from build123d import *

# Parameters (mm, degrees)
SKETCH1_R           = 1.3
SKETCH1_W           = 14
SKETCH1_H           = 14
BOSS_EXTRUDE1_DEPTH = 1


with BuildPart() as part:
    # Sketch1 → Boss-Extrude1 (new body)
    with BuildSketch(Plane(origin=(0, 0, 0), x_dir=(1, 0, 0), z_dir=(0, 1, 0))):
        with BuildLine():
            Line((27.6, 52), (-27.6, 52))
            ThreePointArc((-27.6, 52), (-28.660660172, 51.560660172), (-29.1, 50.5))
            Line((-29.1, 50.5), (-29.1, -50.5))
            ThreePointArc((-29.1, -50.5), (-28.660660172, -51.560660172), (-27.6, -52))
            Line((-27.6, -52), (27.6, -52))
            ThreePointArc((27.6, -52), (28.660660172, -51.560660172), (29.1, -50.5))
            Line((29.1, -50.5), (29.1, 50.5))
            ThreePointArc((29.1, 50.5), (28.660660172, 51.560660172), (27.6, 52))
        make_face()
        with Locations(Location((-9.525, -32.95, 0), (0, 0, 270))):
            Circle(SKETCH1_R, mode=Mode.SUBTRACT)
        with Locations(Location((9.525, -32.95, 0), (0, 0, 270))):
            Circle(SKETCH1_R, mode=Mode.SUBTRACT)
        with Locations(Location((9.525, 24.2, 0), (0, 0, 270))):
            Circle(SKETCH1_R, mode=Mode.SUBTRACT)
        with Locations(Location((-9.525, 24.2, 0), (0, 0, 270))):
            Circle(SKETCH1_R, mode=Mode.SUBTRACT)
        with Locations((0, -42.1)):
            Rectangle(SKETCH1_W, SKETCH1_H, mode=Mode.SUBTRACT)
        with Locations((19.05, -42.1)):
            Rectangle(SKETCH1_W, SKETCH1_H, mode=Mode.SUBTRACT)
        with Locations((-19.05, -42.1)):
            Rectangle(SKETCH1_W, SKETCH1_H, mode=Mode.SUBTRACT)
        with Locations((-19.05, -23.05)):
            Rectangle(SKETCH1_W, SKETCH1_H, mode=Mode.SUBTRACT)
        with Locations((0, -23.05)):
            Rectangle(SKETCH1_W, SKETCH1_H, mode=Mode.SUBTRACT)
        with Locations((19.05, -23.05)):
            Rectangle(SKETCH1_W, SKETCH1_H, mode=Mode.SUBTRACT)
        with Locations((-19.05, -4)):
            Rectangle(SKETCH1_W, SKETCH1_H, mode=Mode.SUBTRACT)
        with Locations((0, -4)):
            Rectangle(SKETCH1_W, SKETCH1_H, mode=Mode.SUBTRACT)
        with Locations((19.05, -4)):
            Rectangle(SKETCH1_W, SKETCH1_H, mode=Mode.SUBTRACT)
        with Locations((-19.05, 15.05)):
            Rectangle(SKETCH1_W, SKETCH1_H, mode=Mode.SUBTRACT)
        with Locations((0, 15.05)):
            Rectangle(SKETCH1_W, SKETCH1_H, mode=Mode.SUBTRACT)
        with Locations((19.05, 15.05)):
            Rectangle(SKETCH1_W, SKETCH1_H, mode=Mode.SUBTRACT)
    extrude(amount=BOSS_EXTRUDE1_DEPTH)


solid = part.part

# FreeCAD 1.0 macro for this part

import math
import FreeCAD as App
import Part
import Sketcher

doc = App.newDocument("Part")
body = doc.addObject("PartDesign::Body", "Body")

# Sketch on XZ plane
sketch1 = body.newObject("Sketcher::SketchObject", "Sketch")
sketch1.AttachmentSupport = (doc.getObject("XZ_Plane"), [""])
sketch1.MapMode = "FlatFace"
sketch1.addGeometry([
    Part.LineSegment(App.Vector(27.6, -52, 0), App.Vector(-27.6, -52, 0)),  # 0
    Part.ArcOfCircle(Part.Circle(App.Vector(-27.6, -50.5, 0), App.Vector(0, 0, 1), 1.5), math.radians(180), math.radians(270)),  # 1
    Part.LineSegment(App.Vector(-29.1, -50.5, 0), App.Vector(-29.1, 50.5, 0)),  # 2
    Part.ArcOfCircle(Part.Circle(App.Vector(-27.6, 50.5, 0), App.Vector(0, 0, 1), 1.5), math.radians(90), math.radians(180)),  # 3
    Part.LineSegment(App.Vector(-27.6, 52, 0), App.Vector(27.6, 52, 0)),  # 4
    Part.ArcOfCircle(Part.Circle(App.Vector(27.6, 50.5, 0), App.Vector(0, 0, 1), 1.5), math.radians(0), math.radians(90)),  # 5
    Part.LineSegment(App.Vector(29.1, 50.5, 0), App.Vector(29.1, -50.5, 0)),  # 6
    Part.ArcOfCircle(Part.Circle(App.Vector(27.6, -50.5, 0), App.Vector(0, 0, 1), 1.5), math.radians(-90), math.radians(0)),  # 7
    Part.LineSegment(App.Vector(-12.1, 49.1, 0), App.Vector(-26.1, 49.1, 0)),  # 8
    Part.LineSegment(App.Vector(-26.1, 49.1, 0), App.Vector(-26.1, 35.1, 0)),  # 9
    Part.LineSegment(App.Vector(-26.1, 35.1, 0), App.Vector(-12.1, 35.1, 0)),  # 10
    Part.LineSegment(App.Vector(-12.1, 35.1, 0), App.Vector(-12.1, 49.1, 0)),  # 11
    Part.Circle(App.Vector(-9.5, 33, 0), App.Vector(0, 0, 1), 1.3),  # 12
    Part.LineSegment(App.Vector(-12.1, 30.1, 0), App.Vector(-26.1, 30.1, 0)),  # 13
    Part.LineSegment(App.Vector(-26.1, 30.1, 0), App.Vector(-26.1, 16.1, 0)),  # 14
    Part.LineSegment(App.Vector(-26.1, 16.1, 0), App.Vector(-12.1, 16.1, 0)),  # 15
    Part.LineSegment(App.Vector(-12.1, 16.1, 0), App.Vector(-12.1, 30.1, 0)),  # 16
    Part.LineSegment(App.Vector(7, 49.1, 0), App.Vector(-7, 49.1, 0)),  # 17
    Part.LineSegment(App.Vector(-7, 49.1, 0), App.Vector(-7, 35.1, 0)),  # 18
    Part.LineSegment(App.Vector(-7, 35.1, 0), App.Vector(7, 35.1, 0)),  # 19
    Part.LineSegment(App.Vector(7, 35.1, 0), App.Vector(7, 49.1, 0)),  # 20
    Part.Circle(App.Vector(9.5, 33, 0), App.Vector(0, 0, 1), 1.3),  # 21
    Part.LineSegment(App.Vector(26.1, 49.1, 0), App.Vector(12.1, 49.1, 0)),  # 22
    Part.LineSegment(App.Vector(12.1, 49.1, 0), App.Vector(12.1, 35.1, 0)),  # 23
    Part.LineSegment(App.Vector(12.1, 35.1, 0), App.Vector(26.1, 35.1, 0)),  # 24
    Part.LineSegment(App.Vector(26.1, 35.1, 0), App.Vector(26.1, 49.1, 0)),  # 25
    Part.LineSegment(App.Vector(7, 30.1, 0), App.Vector(-7, 30.1, 0)),  # 26
    Part.LineSegment(App.Vector(-7, 30.1, 0), App.Vector(-7, 16.1, 0)),  # 27
    Part.LineSegment(App.Vector(-7, 16.1, 0), App.Vector(7, 16.1, 0)),  # 28
    Part.LineSegment(App.Vector(7, 16.1, 0), App.Vector(7, 30.1, 0)),  # 29
    Part.LineSegment(App.Vector(26.1, 30.1, 0), App.Vector(12.1, 30.1, 0)),  # 30
    Part.LineSegment(App.Vector(12.1, 30.1, 0), App.Vector(12.1, 16.1, 0)),  # 31
    Part.LineSegment(App.Vector(12.1, 16.1, 0), App.Vector(26.1, 16.1, 0)),  # 32
    Part.LineSegment(App.Vector(26.1, 16.1, 0), App.Vector(26.1, 30.1, 0)),  # 33
    Part.LineSegment(App.Vector(-12.1, 11, 0), App.Vector(-26.1, 11, 0)),  # 34
    Part.LineSegment(App.Vector(-26.1, 11, 0), App.Vector(-26.1, -3, 0)),  # 35
    Part.LineSegment(App.Vector(-26.1, -3, 0), App.Vector(-12.1, -3, 0)),  # 36
    Part.LineSegment(App.Vector(-12.1, -3, 0), App.Vector(-12.1, 11, 0)),  # 37
    Part.LineSegment(App.Vector(-12.1, -8.1, 0), App.Vector(-26.1, -8.1, 0)),  # 38
    Part.LineSegment(App.Vector(-26.1, -8.1, 0), App.Vector(-26.1, -22.1, 0)),  # 39
    Part.LineSegment(App.Vector(-26.1, -22.1, 0), App.Vector(-12.1, -22.1, 0)),  # 40
    Part.LineSegment(App.Vector(-12.1, -22.1, 0), App.Vector(-12.1, -8.1, 0)),  # 41
    Part.Circle(App.Vector(-9.5, -24.2, 0), App.Vector(0, 0, 1), 1.3),  # 42
    Part.LineSegment(App.Vector(7, 11, 0), App.Vector(-7, 11, 0)),  # 43
    Part.LineSegment(App.Vector(-7, 11, 0), App.Vector(-7, -3, 0)),  # 44
    Part.LineSegment(App.Vector(-7, -3, 0), App.Vector(7, -3, 0)),  # 45
    Part.LineSegment(App.Vector(7, -3, 0), App.Vector(7, 11, 0)),  # 46
    Part.LineSegment(App.Vector(26.1, 11, 0), App.Vector(12.1, 11, 0)),  # 47
    Part.LineSegment(App.Vector(12.1, 11, 0), App.Vector(12.1, -3, 0)),  # 48
    Part.LineSegment(App.Vector(12.1, -3, 0), App.Vector(26.1, -3, 0)),  # 49
    Part.LineSegment(App.Vector(26.1, -3, 0), App.Vector(26.1, 11, 0)),  # 50
    Part.LineSegment(App.Vector(7, -8.1, 0), App.Vector(-7, -8.1, 0)),  # 51
    Part.LineSegment(App.Vector(-7, -8.1, 0), App.Vector(-7, -22.1, 0)),  # 52
    Part.LineSegment(App.Vector(-7, -22.1, 0), App.Vector(7, -22.1, 0)),  # 53
    Part.LineSegment(App.Vector(7, -22.1, 0), App.Vector(7, -8.1, 0)),  # 54
    Part.Circle(App.Vector(9.5, -24.2, 0), App.Vector(0, 0, 1), 1.3),  # 55
    Part.LineSegment(App.Vector(26.1, -8.1, 0), App.Vector(12.1, -8.1, 0)),  # 56
    Part.LineSegment(App.Vector(12.1, -8.1, 0), App.Vector(12.1, -22.1, 0)),  # 57
    Part.LineSegment(App.Vector(12.1, -22.1, 0), App.Vector(26.1, -22.1, 0)),  # 58
    Part.LineSegment(App.Vector(26.1, -22.1, 0), App.Vector(26.1, -8.1, 0)),  # 59
], False)
sketch1.addConstraint([
    Sketcher.Constraint("Tangent", 0, 2, 1, 2),
    Sketcher.Constraint("Tangent", 1, 1, 2, 1),
    Sketcher.Constraint("Tangent", 2, 2, 3, 2),
    Sketcher.Constraint("Tangent", 3, 1, 4, 1),
    Sketcher.Constraint("Tangent", 4, 2, 5, 2),
    Sketcher.Constraint("Tangent", 5, 1, 6, 1),
    Sketcher.Constraint("Tangent", 6, 2, 7, 2),
    Sketcher.Constraint("Tangent", 7, 1, 0, 1),
    Sketcher.Constraint("Coincident", 8, 2, 9, 1),
    Sketcher.Constraint("Coincident", 9, 2, 10, 1),
    Sketcher.Constraint("Coincident", 10, 2, 11, 1),
    Sketcher.Constraint("Coincident", 11, 2, 8, 1),
    Sketcher.Constraint("Coincident", 13, 2, 14, 1),
    Sketcher.Constraint("Coincident", 14, 2, 15, 1),
    Sketcher.Constraint("Coincident", 15, 2, 16, 1),
    Sketcher.Constraint("Coincident", 16, 2, 13, 1),
    Sketcher.Constraint("Coincident", 17, 2, 18, 1),
    Sketcher.Constraint("Coincident", 18, 2, 19, 1),
    Sketcher.Constraint("Coincident", 19, 2, 20, 1),
    Sketcher.Constraint("Coincident", 20, 2, 17, 1),
    Sketcher.Constraint("Coincident", 22, 2, 23, 1),
    Sketcher.Constraint("Coincident", 23, 2, 24, 1),
    Sketcher.Constraint("Coincident", 24, 2, 25, 1),
    Sketcher.Constraint("Coincident", 25, 2, 22, 1),
    Sketcher.Constraint("Coincident", 26, 2, 27, 1),
    Sketcher.Constraint("Coincident", 27, 2, 28, 1),
    Sketcher.Constraint("Coincident", 28, 2, 29, 1),
    Sketcher.Constraint("Coincident", 29, 2, 26, 1),
    Sketcher.Constraint("Coincident", 30, 2, 31, 1),
    Sketcher.Constraint("Coincident", 31, 2, 32, 1),
    Sketcher.Constraint("Coincident", 32, 2, 33, 1),
    Sketcher.Constraint("Coincident", 33, 2, 30, 1),
    Sketcher.Constraint("Coincident", 34, 2, 35, 1),
    Sketcher.Constraint("Coincident", 35, 2, 36, 1),
    Sketcher.Constraint("Coincident", 36, 2, 37, 1),
    Sketcher.Constraint("Coincident", 37, 2, 34, 1),
    Sketcher.Constraint("Coincident", 38, 2, 39, 1),
    Sketcher.Constraint("Coincident", 39, 2, 40, 1),
    Sketcher.Constraint("Coincident", 40, 2, 41, 1),
    Sketcher.Constraint("Coincident", 41, 2, 38, 1),
    Sketcher.Constraint("Coincident", 43, 2, 44, 1),
    Sketcher.Constraint("Coincident", 44, 2, 45, 1),
    Sketcher.Constraint("Coincident", 45, 2, 46, 1),
    Sketcher.Constraint("Coincident", 46, 2, 43, 1),
    Sketcher.Constraint("Coincident", 47, 2, 48, 1),
    Sketcher.Constraint("Coincident", 48, 2, 49, 1),
    Sketcher.Constraint("Coincident", 49, 2, 50, 1),
    Sketcher.Constraint("Coincident", 50, 2, 47, 1),
    Sketcher.Constraint("Coincident", 51, 2, 52, 1),
    Sketcher.Constraint("Coincident", 52, 2, 53, 1),
    Sketcher.Constraint("Coincident", 53, 2, 54, 1),
    Sketcher.Constraint("Coincident", 54, 2, 51, 1),
    Sketcher.Constraint("Coincident", 56, 2, 57, 1),
    Sketcher.Constraint("Coincident", 57, 2, 58, 1),
    Sketcher.Constraint("Coincident", 58, 2, 59, 1),
    Sketcher.Constraint("Coincident", 59, 2, 56, 1),
    Sketcher.Constraint("Horizontal", 0),
    Sketcher.Constraint("Vertical", 2),
    Sketcher.Constraint("Horizontal", 4),
    Sketcher.Constraint("Vertical", 6),
    Sketcher.Constraint("Horizontal", 8),
    Sketcher.Constraint("Vertical", 9),
    Sketcher.Constraint("Horizontal", 10),
    Sketcher.Constraint("Vertical", 11),
    Sketcher.Constraint("Horizontal", 13),
    Sketcher.Constraint("Vertical", 14),
    Sketcher.Constraint("Horizontal", 15),
    Sketcher.Constraint("Vertical", 16),
    Sketcher.Constraint("Horizontal", 17),
    Sketcher.Constraint("Vertical", 18),
    Sketcher.Constraint("Horizontal", 19),
    Sketcher.Constraint("Vertical", 20),
    Sketcher.Constraint("Horizontal", 22),
    Sketcher.Constraint("Vertical", 23),
    Sketcher.Constraint("Horizontal", 24),
    Sketcher.Constraint("Vertical", 25),
    Sketcher.Constraint("Horizontal", 26),
    Sketcher.Constraint("Vertical", 27),
    Sketcher.Constraint("Horizontal", 28),
    Sketcher.Constraint("Vertical", 29),
    Sketcher.Constraint("Horizontal", 30),
    Sketcher.Constraint("Vertical", 31),
    Sketcher.Constraint("Horizontal", 32),
    Sketcher.Constraint("Vertical", 33),
    Sketcher.Constraint("Horizontal", 34),
    Sketcher.Constraint("Vertical", 35),
    Sketcher.Constraint("Horizontal", 36),
    Sketcher.Constraint("Vertical", 37),
    Sketcher.Constraint("Horizontal", 38),
    Sketcher.Constraint("Vertical", 39),
    Sketcher.Constraint("Horizontal", 40),
    Sketcher.Constraint("Vertical", 41),
    Sketcher.Constraint("Horizontal", 43),
    Sketcher.Constraint("Vertical", 44),
    Sketcher.Constraint("Horizontal", 45),
    Sketcher.Constraint("Vertical", 46),
    Sketcher.Constraint("Horizontal", 47),
    Sketcher.Constraint("Vertical", 48),
    Sketcher.Constraint("Horizontal", 49),
    Sketcher.Constraint("Vertical", 50),
    Sketcher.Constraint("Horizontal", 51),
    Sketcher.Constraint("Vertical", 52),
    Sketcher.Constraint("Horizontal", 53),
    Sketcher.Constraint("Vertical", 54),
    Sketcher.Constraint("Horizontal", 56),
    Sketcher.Constraint("Vertical", 57),
    Sketcher.Constraint("Horizontal", 58),
    Sketcher.Constraint("Vertical", 59),
    Sketcher.Constraint("Equal", 1, 3),
    Sketcher.Constraint("Equal", 3, 5),
    Sketcher.Constraint("Equal", 5, 7),
    Sketcher.Constraint("Equal", 12, 21),
    Sketcher.Constraint("Equal", 21, 42),
    Sketcher.Constraint("Equal", 42, 55),
    Sketcher.Constraint("Symmetric", 1, 3, 5, 3, -1, 1),
    Sketcher.Constraint("Symmetric", 12, 3, 21, 3, -2),
    Sketcher.Constraint("Symmetric", 42, 3, 55, 3, -2),
    Sketcher.Constraint("Symmetric", 11, 2, 22, 2, -2),
    Sketcher.Constraint("Symmetric", 9, 2, 24, 2, -2),
    Sketcher.Constraint("Symmetric", 16, 2, 30, 2, -2),
    Sketcher.Constraint("Symmetric", 14, 2, 32, 2, -2),
    Sketcher.Constraint("Symmetric", 37, 2, 47, 2, -2),
    Sketcher.Constraint("Symmetric", 35, 2, 49, 2, -2),
    Sketcher.Constraint("Symmetric", 41, 2, 56, 2, -2),
    Sketcher.Constraint("Symmetric", 39, 2, 58, 2, -2),
    Sketcher.Constraint("Horizontal", 11, 2, 17, 2),
    Sketcher.Constraint("Horizontal", 10, 2, 18, 2),
    Sketcher.Constraint("Horizontal", 16, 2, 26, 2),
    Sketcher.Constraint("Horizontal", 15, 2, 27, 2),
    Sketcher.Constraint("Horizontal", 37, 2, 43, 2),
    Sketcher.Constraint("Horizontal", 36, 2, 44, 2),
    Sketcher.Constraint("Horizontal", 41, 2, 51, 2),
    Sketcher.Constraint("Horizontal", 40, 2, 52, 2),
    Sketcher.Constraint("Vertical", 12, 3, 42, 3),
    Sketcher.Constraint("Vertical", 9, 2, 13, 2),
    Sketcher.Constraint("Vertical", 11, 2, 15, 2),
    Sketcher.Constraint("Vertical", 18, 2, 26, 2),
    Sketcher.Constraint("Vertical", 20, 2, 28, 2),
    Sketcher.Constraint("Vertical", 14, 2, 34, 2),
    Sketcher.Constraint("Vertical", 16, 2, 36, 2),
    Sketcher.Constraint("Vertical", 35, 2, 38, 2),
    Sketcher.Constraint("Vertical", 37, 2, 40, 2),
    Sketcher.Constraint("Vertical", 27, 2, 43, 2),
    Sketcher.Constraint("Vertical", 29, 2, 45, 2),
    Sketcher.Constraint("Vertical", 44, 2, 51, 2),
    Sketcher.Constraint("Vertical", 46, 2, 53, 2),
    Sketcher.Constraint("Equal", 15, 17),
    Sketcher.Constraint("Equal", 58, 9),
    Sketcher.Constraint("Equal", 11, 14),
    Sketcher.Constraint("Equal", 33, 35),
    Sketcher.Constraint("Equal", 37, 39),
    Sketcher.Constraint("Diameter", 12, 2.6),
    Sketcher.Constraint("Radius", 1, 1.5),
    Sketcher.Constraint("DistanceX", 8, 2, 8, 1, 14.0),
    Sketcher.Constraint("DistanceY", 2, 1, 2, 2, 101.0),
    Sketcher.Constraint("DistanceX", 0, 2, 0, 1, 55.2),
    Sketcher.Constraint("DistanceX", 17, 2, -1, 1, 7.0),
    Sketcher.Constraint("DistanceY", -1, 1, 34, 2, 11.0),
    Sketcher.Constraint("DistanceY", 42, 3, -1, 1, 24.2),
    Sketcher.Constraint("DistanceY", -1, 1, 8, 2, 49.1),
    Sketcher.Constraint("DistanceY", -1, 1, 12, 3, 32.95),
    Sketcher.Constraint("DistanceX", 8, 2, -1, 1, 26.05),
    Sketcher.Constraint("DistanceY", -1, 1, 13, 2, 30.05),
    Sketcher.Constraint("DistanceY", 38, 2, -1, 1, 8.05),
    Sketcher.Constraint("DistanceX", 12, 3, -1, 1, 9.525),
])
pad1 = body.newObject("PartDesign::Pad", "Pad")
pad1.Profile = sketch1
pad1.Length = 1
pad1.Reversed = True

doc.recompute()
